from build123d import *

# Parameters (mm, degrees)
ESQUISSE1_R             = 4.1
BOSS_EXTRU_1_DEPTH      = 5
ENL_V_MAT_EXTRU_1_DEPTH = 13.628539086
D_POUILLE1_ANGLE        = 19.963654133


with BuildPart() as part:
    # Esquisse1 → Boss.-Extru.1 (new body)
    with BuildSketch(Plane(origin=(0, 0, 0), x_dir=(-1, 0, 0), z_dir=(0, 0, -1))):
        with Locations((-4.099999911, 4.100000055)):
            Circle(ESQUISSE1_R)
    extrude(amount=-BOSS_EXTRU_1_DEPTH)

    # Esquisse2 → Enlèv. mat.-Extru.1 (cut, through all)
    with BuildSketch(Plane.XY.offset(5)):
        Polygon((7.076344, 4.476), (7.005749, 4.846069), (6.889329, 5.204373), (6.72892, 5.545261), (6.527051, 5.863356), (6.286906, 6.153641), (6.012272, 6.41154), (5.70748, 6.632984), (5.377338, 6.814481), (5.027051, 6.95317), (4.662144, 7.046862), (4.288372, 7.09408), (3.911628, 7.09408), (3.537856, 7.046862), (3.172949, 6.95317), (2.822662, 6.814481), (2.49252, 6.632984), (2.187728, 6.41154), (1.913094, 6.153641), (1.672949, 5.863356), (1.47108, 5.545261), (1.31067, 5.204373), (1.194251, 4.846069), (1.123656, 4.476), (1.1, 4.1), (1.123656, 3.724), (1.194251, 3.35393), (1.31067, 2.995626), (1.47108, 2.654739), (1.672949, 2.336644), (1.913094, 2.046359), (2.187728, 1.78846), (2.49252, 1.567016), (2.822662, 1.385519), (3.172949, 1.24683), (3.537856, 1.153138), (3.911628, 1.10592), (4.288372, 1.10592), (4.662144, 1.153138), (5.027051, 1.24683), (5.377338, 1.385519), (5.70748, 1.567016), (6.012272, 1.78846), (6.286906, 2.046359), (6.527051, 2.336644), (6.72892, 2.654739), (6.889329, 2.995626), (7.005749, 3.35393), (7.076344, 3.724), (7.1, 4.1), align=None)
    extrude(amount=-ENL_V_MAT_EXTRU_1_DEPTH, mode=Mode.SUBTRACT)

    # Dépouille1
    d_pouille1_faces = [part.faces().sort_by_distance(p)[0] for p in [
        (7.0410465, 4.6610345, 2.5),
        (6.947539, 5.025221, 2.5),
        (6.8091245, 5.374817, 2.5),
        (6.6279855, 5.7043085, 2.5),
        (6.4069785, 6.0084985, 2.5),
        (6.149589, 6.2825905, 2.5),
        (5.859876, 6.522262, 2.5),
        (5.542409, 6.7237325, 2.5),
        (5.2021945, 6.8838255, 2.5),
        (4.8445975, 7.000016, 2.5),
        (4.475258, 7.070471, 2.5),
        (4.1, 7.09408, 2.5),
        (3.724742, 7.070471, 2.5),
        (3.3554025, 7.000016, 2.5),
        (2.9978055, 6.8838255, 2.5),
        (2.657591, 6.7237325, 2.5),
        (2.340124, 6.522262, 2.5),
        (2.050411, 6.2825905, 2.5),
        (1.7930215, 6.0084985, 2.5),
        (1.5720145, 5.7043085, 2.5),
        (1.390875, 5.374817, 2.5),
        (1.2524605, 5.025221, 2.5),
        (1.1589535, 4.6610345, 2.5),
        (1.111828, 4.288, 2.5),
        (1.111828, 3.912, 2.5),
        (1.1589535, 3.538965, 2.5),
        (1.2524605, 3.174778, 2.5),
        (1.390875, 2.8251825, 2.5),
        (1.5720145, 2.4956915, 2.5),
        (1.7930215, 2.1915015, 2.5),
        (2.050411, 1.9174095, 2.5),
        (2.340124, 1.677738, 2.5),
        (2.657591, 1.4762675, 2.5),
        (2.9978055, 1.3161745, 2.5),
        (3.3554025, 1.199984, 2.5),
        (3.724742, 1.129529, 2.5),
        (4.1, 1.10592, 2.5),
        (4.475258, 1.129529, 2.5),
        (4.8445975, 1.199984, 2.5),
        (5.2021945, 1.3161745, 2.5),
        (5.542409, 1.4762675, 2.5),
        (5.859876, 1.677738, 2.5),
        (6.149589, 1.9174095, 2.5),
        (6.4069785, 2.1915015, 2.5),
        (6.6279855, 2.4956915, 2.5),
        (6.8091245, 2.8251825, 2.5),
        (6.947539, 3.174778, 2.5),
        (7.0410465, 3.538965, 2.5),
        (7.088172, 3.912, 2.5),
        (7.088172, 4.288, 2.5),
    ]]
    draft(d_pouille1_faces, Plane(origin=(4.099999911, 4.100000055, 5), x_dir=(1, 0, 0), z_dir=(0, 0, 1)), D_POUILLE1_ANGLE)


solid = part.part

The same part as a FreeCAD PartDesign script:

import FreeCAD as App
import Part
import Sketcher
Q = App.Units.Quantity


def faces_at(feature, points):
    """Names of the faces that lie closest to the given points."""
    faces = feature.Shape.Faces
    near = lambda p: min(range(len(faces)), key=lambda i: faces[i].distToShape(Part.Vertex(*p))[0])
    return sorted({f"Face{near(p) + 1}" for p in points})


def add_polygon(sketch, points):
    """Adds a closed chain of lines whose ends are joined by coincident constraints."""
    first, n = sketch.GeometryCount, len(points)
    for a, b in zip(points, points[1:] + points[:1]):
        sketch.addGeometry(Part.LineSegment(App.Vector(*a, 0), App.Vector(*b, 0)), False)
    for i in range(n):
        sketch.addConstraint(Sketcher.Constraint("Coincident", first + i, 2, first + (i + 1) % n, 1))

doc = App.newDocument("Part")
body = doc.addObject("PartDesign::Body", "Body")

# Sketch on XY plane
sketch1 = body.newObject("Sketcher::SketchObject", "Sketch")
sketch1.AttachmentSupport = (doc.getObject("XY_Plane"), [""])
sketch1.MapMode = "FlatFace"
sketch1.addGeometry(Part.Circle(App.Vector(4.1, 4.1, 0), App.Vector(0, 0, 1), 4.1), False)
sketch1.addConstraint(Sketcher.Constraint("Diameter", 0, Q("8.2 mm")))
sketch1.addConstraint(Sketcher.Constraint("DistanceX", -1, 1, 0, 3, Q("4.1 mm")))
sketch1.addConstraint(Sketcher.Constraint("DistanceY", -1, 1, 0, 3, Q("4.1 mm")))
pad1 = body.newObject("PartDesign::Pad", "Pad")
pad1.Profile = sketch1
pad1.Length = 5

# Sketch on XY plane
sketch2 = body.newObject("Sketcher::SketchObject", "Sketch001")
sketch2.AttachmentSupport = (doc.getObject("XY_Plane"), [""])
sketch2.MapMode = "FlatFace"
sketch2.AttachmentOffset = App.Placement(App.Vector(0, 0, 5), App.Rotation())
add_polygon(sketch2, [(7.08, 4.48), (7.01, 4.85), (6.89, 5.2), (6.73, 5.55), (6.53, 5.86), (6.29, 6.15), (6.01, 6.41), (5.71, 6.63), (5.38, 6.81), (5.03, 6.95), (4.66, 7.05), (4.29, 7.09), (3.91, 7.09), (3.54, 7.05), (3.17, 6.95), (2.82, 6.81), (2.49, 6.63), (2.19, 6.41), (1.91, 6.15), (1.67, 5.86), (1.47, 5.55), (1.31, 5.2), (1.19, 4.85), (1.12, 4.48), (1.1, 4.1), (1.12, 3.72), (1.19, 3.35), (1.31, 3), (1.47, 2.65), (1.67, 2.34), (1.91, 2.05), (2.19, 1.79), (2.49, 1.57), (2.82, 1.39), (3.17, 1.25), (3.54, 1.15), (3.91, 1.11), (4.29, 1.11), (4.66, 1.15), (5.03, 1.25), (5.38, 1.39), (5.71, 1.57), (6.01, 1.79), (6.29, 2.05), (6.53, 2.34), (6.73, 2.65), (6.89, 3), (7.01, 3.35), (7.08, 3.72), (7.1, 4.1)])  # lines 0-49
sketch2.addConstraint(Sketcher.Constraint("Horizontal", 11))
sketch2.addConstraint(Sketcher.Constraint("Horizontal", 36))
sketch2.addConstraint(Sketcher.Constraint("Parallel", 0, 25))
sketch2.addConstraint(Sketcher.Constraint("Parallel", 3, 28))
sketch2.addConstraint(Sketcher.Constraint("Parallel", 4, 29))
sketch2.addConstraint(Sketcher.Constraint("Parallel", 5, 30))
sketch2.addConstraint(Sketcher.Constraint("Parallel", 6, 31))
sketch2.addConstraint(Sketcher.Constraint("Parallel", 7, 32))
sketch2.addConstraint(Sketcher.Constraint("Parallel", 8, 33))
sketch2.addConstraint(Sketcher.Constraint("Parallel", 9, 34))
sketch2.addConstraint(Sketcher.Constraint("Parallel", 10, 35))
sketch2.addConstraint(Sketcher.Constraint("Parallel", 12, 37))
sketch2.addConstraint(Sketcher.Constraint("Parallel", 13, 38))
sketch2.addConstraint(Sketcher.Constraint("Parallel", 14, 39))
sketch2.addConstraint(Sketcher.Constraint("Parallel", 15, 40))
sketch2.addConstraint(Sketcher.Constraint("Parallel", 16, 41))
sketch2.addConstraint(Sketcher.Constraint("Parallel", 17, 42))
sketch2.addConstraint(Sketcher.Constraint("Parallel", 18, 43))
sketch2.addConstraint(Sketcher.Constraint("Parallel", 19, 44))
sketch2.addConstraint(Sketcher.Constraint("Parallel", 20, 45))
sketch2.addConstraint(Sketcher.Constraint("Parallel", 22, 47))
sketch2.addConstraint(Sketcher.Constraint("Parallel", 23, 48))
sketch2.addConstraint(Sketcher.Constraint("Parallel", 24, 49))
sketch2.addConstraint(Sketcher.Constraint("Horizontal", 9, 2, 12, 2))
sketch2.addConstraint(Sketcher.Constraint("Horizontal", 8, 2, 13, 2))
sketch2.addConstraint(Sketcher.Constraint("Horizontal", 7, 2, 14, 2))
sketch2.addConstraint(Sketcher.Constraint("Horizontal", 6, 2, 15, 2))
sketch2.addConstraint(Sketcher.Constraint("Horizontal", 5, 2, 16, 2))
sketch2.addConstraint(Sketcher.Constraint("Horizontal", 4, 2, 17, 2))
sketch2.addConstraint(Sketcher.Constraint("Horizontal", 3, 2, 18, 2))
sketch2.addConstraint(Sketcher.Constraint("Horizontal", 2, 2, 19, 2))
sketch2.addConstraint(Sketcher.Constraint("Horizontal", 1, 2, 20, 2))
sketch2.addConstraint(Sketcher.Constraint("Horizontal", 0, 2, 21, 2))
sketch2.addConstraint(Sketcher.Constraint("Horizontal", 34, 2, 37, 2))
sketch2.addConstraint(Sketcher.Constraint("Horizontal", 33, 2, 38, 2))
sketch2.addConstraint(Sketcher.Constraint("Horizontal", 32, 2, 39, 2))
sketch2.addConstraint(Sketcher.Constraint("Horizontal", 31, 2, 40, 2))
sketch2.addConstraint(Sketcher.Constraint("Horizontal", 30, 2, 41, 2))
sketch2.addConstraint(Sketcher.Constraint("Horizontal", 29, 2, 42, 2))
sketch2.addConstraint(Sketcher.Constraint("Horizontal", 28, 2, 43, 2))
sketch2.addConstraint(Sketcher.Constraint("Horizontal", 27, 2, 44, 2))
sketch2.addConstraint(Sketcher.Constraint("Horizontal", 26, 2, 45, 2))
sketch2.addConstraint(Sketcher.Constraint("Horizontal", 25, 2, 46, 2))
sketch2.addConstraint(Sketcher.Constraint("Horizontal", 24, 2, 47, 2))
sketch2.addConstraint(Sketcher.Constraint("Horizontal", 23, 2, 48, 2))
sketch2.addConstraint(Sketcher.Constraint("Horizontal", 22, 2, 49, 2))
sketch2.addConstraint(Sketcher.Constraint("Vertical", 22, 2, 24, 2))
sketch2.addConstraint(Sketcher.Constraint("Vertical", 21, 2, 25, 2))
sketch2.addConstraint(Sketcher.Constraint("Vertical", 20, 2, 26, 2))
sketch2.addConstraint(Sketcher.Constraint("Vertical", 19, 2, 27, 2))
sketch2.addConstraint(Sketcher.Constraint("Vertical", 18, 2, 28, 2))
sketch2.addConstraint(Sketcher.Constraint("Vertical", 17, 2, 29, 2))
sketch2.addConstraint(Sketcher.Constraint("Vertical", 16, 2, 30, 2))
sketch2.addConstraint(Sketcher.Constraint("Vertical", 15, 2, 31, 2))
sketch2.addConstraint(Sketcher.Constraint("Vertical", 14, 2, 32, 2))
sketch2.addConstraint(Sketcher.Constraint("Vertical", 13, 2, 33, 2))
sketch2.addConstraint(Sketcher.Constraint("Vertical", 12, 2, 34, 2))
sketch2.addConstraint(Sketcher.Constraint("Vertical", 11, 2, 35, 2))
sketch2.addConstraint(Sketcher.Constraint("Vertical", 10, 2, 36, 2))
sketch2.addConstraint(Sketcher.Constraint("Vertical", 9, 2, 37, 2))
sketch2.addConstraint(Sketcher.Constraint("Vertical", 8, 2, 38, 2))
sketch2.addConstraint(Sketcher.Constraint("Vertical", 7, 2, 39, 2))
sketch2.addConstraint(Sketcher.Constraint("Vertical", 6, 2, 40, 2))
sketch2.addConstraint(Sketcher.Constraint("Vertical", 5, 2, 41, 2))
sketch2.addConstraint(Sketcher.Constraint("Vertical", 4, 2, 42, 2))
sketch2.addConstraint(Sketcher.Constraint("Vertical", 3, 2, 43, 2))
sketch2.addConstraint(Sketcher.Constraint("Vertical", 2, 2, 44, 2))
sketch2.addConstraint(Sketcher.Constraint("Vertical", 1, 2, 45, 2))
sketch2.addConstraint(Sketcher.Constraint("Vertical", 0, 2, 46, 2))
sketch2.addConstraint(Sketcher.Constraint("Vertical", 47, 2, 49, 2))
sketch2.addConstraint(Sketcher.Constraint("Equal", 0, 1))
sketch2.addConstraint(Sketcher.Constraint("Equal", 1, 2))
sketch2.addConstraint(Sketcher.Constraint("Equal", 2, 3))
sketch2.addConstraint(Sketcher.Constraint("Equal", 3, 4))
sketch2.addConstraint(Sketcher.Constraint("Equal", 4, 5))
sketch2.addConstraint(Sketcher.Constraint("Equal", 5, 6))
sketch2.addConstraint(Sketcher.Constraint("Equal", 6, 7))
sketch2.addConstraint(Sketcher.Constraint("Equal", 7, 8))
sketch2.addConstraint(Sketcher.Constraint("Equal", 8, 9))
sketch2.addConstraint(Sketcher.Constraint("Equal", 9, 10))
sketch2.addConstraint(Sketcher.Constraint("Equal", 19, 20))
sketch2.addConstraint(Sketcher.Constraint("Equal", 20, 21))
sketch2.addConstraint(Sketcher.Constraint("Equal", 22, 23))
sketch2.addConstraint(Sketcher.Constraint("Equal", 25, 26))
sketch2.addConstraint(Sketcher.Constraint("Angle", 1, Q("107.999996 deg")))
sketch2.addConstraint(Sketcher.Constraint("Angle", 7, Q("151.200013 deg")))
sketch2.addConstraint(Sketcher.Constraint("Angle", 23, Q("-93.600013 deg")))
sketch2.addConstraint(Sketcher.Constraint("DistanceX", -1, 1, 23, 2, Q("1.1 mm")))
sketch2.addConstraint(Sketcher.Constraint("DistanceY", -1, 1, 23, 2, Q("4.1 mm")))
sketch2.addConstraint(Sketcher.Constraint("DistanceX", -1, 1, 48, 2, Q("7.1 mm")))
sketch2.addConstraint(Sketcher.Constraint("DistanceX", 8, 2, 3, 2, Q("1.5 mm")))
sketch2.addConstraint(Sketcher.Constraint("DistanceY", -1, 1, 22, 2, Q("4.476 mm")))
sketch2.addConstraint(Sketcher.Constraint("DistanceY", 4, 2, 5, 2, Q("0.257899 mm")))
sketch2.addConstraint(Sketcher.Constraint("DistanceY", 7, 2, 10, 2, Q("0.279599 mm")))
sketch2.addConstraint(Sketcher.Constraint("DistanceX", 10, 2, 5, 2, Q("1.7239 mm")))
sketch2.addConstraint(Sketcher.Constraint("DistanceX", 21, 2, 18, 2, Q("0.478698 mm")))
sketch2.addConstraint(Sketcher.Constraint("DistanceX", 11, 2, 11, 1, Q("0.376744 mm")))
sketch2.addConstraint(Sketcher.Constraint("DistanceX", -1, 1, 0, 2, Q("7.005749 mm")))
sketch2.addConstraint(Sketcher.Constraint("DistanceX", -1, 1, 2, 2, Q("6.72892 mm")))
sketch2.addConstraint(Sketcher.Constraint("DistanceX", -1, 1, 6, 2, Q("5.70748 mm")))
pocket1 = body.newObject("PartDesign::Pocket", "Pocket")
pocket1.Profile = sketch2
pocket1.Type = "ThroughAll"
doc.recompute()

datumplane = body.newObject("PartDesign::Plane", "DatumPlane")
datumplane.AttachmentSupport = (doc.getObject("XY_Plane"), [""])
datumplane.MapMode = "FlatFace"
datumplane.AttachmentOffset = App.Placement(App.Vector(0, 0, 5), App.Rotation())
draft = body.newObject("PartDesign::Draft", "Draft")
draft.Base = (pocket1, faces_at(pocket1, [
    (7.041, 4.661, 2.5),
    (6.948, 5.025, 2.5),
    (6.809, 5.375, 2.5),
    (6.628, 5.704, 2.5),
    (6.407, 6.008, 2.5),
    (6.15, 6.283, 2.5),
    (5.86, 6.522, 2.5),
    (5.542, 6.724, 2.5),
    (5.202, 6.884, 2.5),
    (4.845, 7, 2.5),
    (4.475, 7.07, 2.5),
    (4.1, 7.094, 2.5),
    (3.725, 7.07, 2.5),
    (3.355, 7, 2.5),
    (2.998, 6.884, 2.5),
    (2.658, 6.724, 2.5),
    (2.34, 6.522, 2.5),
    (2.05, 6.283, 2.5),
    (1.793, 6.008, 2.5),
    (1.572, 5.704, 2.5),
    (1.391, 5.375, 2.5),
    (1.252, 5.025, 2.5),
    (1.159, 4.661, 2.5),
    (1.112, 4.288, 2.5),
    (1.112, 3.912, 2.5),
    (1.159, 3.539, 2.5),
    (1.252, 3.175, 2.5),
    (1.391, 2.825, 2.5),
    (1.572, 2.496, 2.5),
    (1.793, 2.192, 2.5),
    (2.05, 1.917, 2.5),
    (2.34, 1.678, 2.5),
    (2.658, 1.476, 2.5),
    (2.998, 1.316, 2.5),
    (3.355, 1.2, 2.5),
    (3.725, 1.13, 2.5),
    (4.1, 1.106, 2.5),
    (4.475, 1.13, 2.5),
    (4.845, 1.2, 2.5),
    (5.202, 1.316, 2.5),
    (5.542, 1.476, 2.5),
    (5.86, 1.678, 2.5),
    (6.15, 1.917, 2.5),
    (6.407, 2.192, 2.5),
    (6.628, 2.496, 2.5),
    (6.809, 2.825, 2.5),
    (6.948, 3.175, 2.5),
    (7.041, 3.539, 2.5),
    (7.088, 3.912, 2.5),
    (7.088, 4.288, 2.5),
]))
draft.NeutralPlane = (datumplane, [""])
draft.Angle = 19.963654
draft.Reversed = False

doc.recompute()
